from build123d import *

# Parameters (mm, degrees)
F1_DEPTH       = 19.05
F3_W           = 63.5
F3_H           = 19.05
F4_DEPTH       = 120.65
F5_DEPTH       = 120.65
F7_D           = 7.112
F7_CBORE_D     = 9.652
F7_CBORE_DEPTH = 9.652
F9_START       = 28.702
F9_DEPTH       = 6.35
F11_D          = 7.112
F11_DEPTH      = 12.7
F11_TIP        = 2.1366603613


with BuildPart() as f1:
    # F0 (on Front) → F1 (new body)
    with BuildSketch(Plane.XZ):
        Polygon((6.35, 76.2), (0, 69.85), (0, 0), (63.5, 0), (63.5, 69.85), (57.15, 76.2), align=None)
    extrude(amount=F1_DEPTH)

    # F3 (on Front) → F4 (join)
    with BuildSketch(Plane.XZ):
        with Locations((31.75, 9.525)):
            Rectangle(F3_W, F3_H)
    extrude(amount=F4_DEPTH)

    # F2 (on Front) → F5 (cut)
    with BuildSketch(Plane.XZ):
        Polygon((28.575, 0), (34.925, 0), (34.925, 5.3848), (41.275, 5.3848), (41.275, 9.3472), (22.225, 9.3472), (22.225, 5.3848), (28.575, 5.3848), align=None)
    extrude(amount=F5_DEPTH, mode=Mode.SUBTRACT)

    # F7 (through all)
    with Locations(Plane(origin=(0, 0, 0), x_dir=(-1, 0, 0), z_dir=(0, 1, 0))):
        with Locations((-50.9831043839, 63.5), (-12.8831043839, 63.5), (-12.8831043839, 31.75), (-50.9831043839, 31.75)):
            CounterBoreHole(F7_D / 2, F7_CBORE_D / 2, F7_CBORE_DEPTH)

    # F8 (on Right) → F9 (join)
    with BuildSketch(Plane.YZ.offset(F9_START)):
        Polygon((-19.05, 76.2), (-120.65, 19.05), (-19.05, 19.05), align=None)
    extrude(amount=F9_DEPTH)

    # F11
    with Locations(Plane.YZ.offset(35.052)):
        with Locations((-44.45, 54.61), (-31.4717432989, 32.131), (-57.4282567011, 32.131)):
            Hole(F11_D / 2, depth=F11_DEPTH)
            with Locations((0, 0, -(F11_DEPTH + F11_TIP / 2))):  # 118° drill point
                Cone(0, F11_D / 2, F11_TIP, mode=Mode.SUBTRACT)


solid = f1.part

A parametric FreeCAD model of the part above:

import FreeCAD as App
import Part
import Sketcher

V = App.Vector
Q = App.Units.Quantity

doc = App.newDocument("Part")
body = doc.addObject("PartDesign::Body", "Body")

sketch1 = doc.addObject("Sketcher::SketchObject", "Sketch")
body.addObject(sketch1)
sketch1.AttachmentSupport = (doc.XZ_Plane, [""])
sketch1.MapMode = "FlatFace"
sketch1.addGeometry([
    Part.LineSegment(V(6, 76, 0), V(0, 70, 0)),
    Part.LineSegment(V(0, 70, 0), V(0, 0, 0)),
    Part.LineSegment(V(0, 0, 0), V(64, 0, 0)),
    Part.LineSegment(V(64, 0, 0), V(64, 70, 0)),
    Part.LineSegment(V(64, 70, 0), V(57, 76, 0)),
    Part.LineSegment(V(57, 76, 0), V(6, 76, 0)),
], False)
sketch1.addConstraint([
    Sketcher.Constraint("Coincident", 0, 2, 1, 1),
    Sketcher.Constraint("Coincident", 1, 2, 2, 1),
    Sketcher.Constraint("Coincident", 2, 2, 3, 1),
    Sketcher.Constraint("Coincident", 3, 2, 4, 1),
    Sketcher.Constraint("Coincident", 4, 2, 5, 1),
    Sketcher.Constraint("Coincident", 5, 2, 0, 1),
    Sketcher.Constraint("Vertical", 1),
    Sketcher.Constraint("Horizontal", 2),
    Sketcher.Constraint("Vertical", 3),
    Sketcher.Constraint("Horizontal", 5),
    Sketcher.Constraint("Coincident", 1, 2, -1, 1),
    Sketcher.Constraint("Perpendicular", 0, 4),
    Sketcher.Constraint("Horizontal", 0, 2, 3, 2),
    Sketcher.Constraint("Equal", 0, 4),
    Sketcher.Constraint("DistanceX", 5, 2, 5, 1, Q("2 in")),
    Sketcher.Constraint("DistanceX", 2, 1, 2, 2, Q("2.5 in")),
    Sketcher.Constraint("DistanceY", -1, 1, 4, 2, Q("3 in")),
])
pad1 = doc.addObject("PartDesign::Pad", "Pad")
body.addObject(pad1)
pad1.Profile = sketch1
pad1.Length = Q("0.75 in")

sketch2 = doc.addObject("Sketcher::SketchObject", "Sketch001")
body.addObject(sketch2)
sketch2.AttachmentSupport = (doc.XZ_Plane, [""])
sketch2.MapMode = "FlatFace"
sketch2.addGeometry([
    Part.LineSegment(V(0, 19, 0), V(0, 0, 0)),
    Part.LineSegment(V(0, 0, 0), V(64, 0, 0)),
    Part.LineSegment(V(64, 0, 0), V(64, 19, 0)),
    Part.LineSegment(V(64, 19, 0), V(0, 19, 0)),
], False)
sketch2.addConstraint([
    Sketcher.Constraint("Coincident", 0, 2, 1, 1),
    Sketcher.Constraint("Coincident", 1, 2, 2, 1),
    Sketcher.Constraint("Coincident", 2, 2, 3, 1),
    Sketcher.Constraint("Coincident", 3, 2, 0, 1),
    Sketcher.Constraint("Vertical", 0),
    Sketcher.Constraint("Horizontal", 1),
    Sketcher.Constraint("Vertical", 2),
    Sketcher.Constraint("Horizontal", 3),
    Sketcher.Constraint("Coincident", 0, 2, -1, 1),
    Sketcher.Constraint("DistanceX", 1, 1, 1, 2, Q("2.5 in")),
    Sketcher.Constraint("DistanceY", 0, 2, 0, 1, Q("0.75 in")),
])
pad2 = doc.addObject("PartDesign::Pad", "Pad001")
body.addObject(pad2)
pad2.Profile = sketch2
pad2.Length = Q("4.75 in")

sketch3 = doc.addObject("Sketcher::SketchObject", "Sketch002")
body.addObject(sketch3)
sketch3.AttachmentSupport = (doc.XZ_Plane, [""])
sketch3.MapMode = "FlatFace"
sketch3.addGeometry([
    Part.LineSegment(V(28.6, 0, 0), V(34.9, 0, 0)),
    Part.LineSegment(V(34.9, 0, 0), V(34.9, 5.4, 0)),
    Part.LineSegment(V(34.9, 5.4, 0), V(41.3, 5.4, 0)),
    Part.LineSegment(V(41.3, 5.4, 0), V(41.3, 9.3, 0)),
    Part.LineSegment(V(41.3, 9.3, 0), V(22.2, 9.3, 0)),
    Part.LineSegment(V(22.2, 9.3, 0), V(22.2, 5.4, 0)),
    Part.LineSegment(V(22.2, 5.4, 0), V(28.6, 5.4, 0)),
    Part.LineSegment(V(28.6, 5.4, 0), V(28.6, 0, 0)),
], False)
sketch3.addConstraint([
    Sketcher.Constraint("Coincident", 0, 2, 1, 1),
    Sketcher.Constraint("Coincident", 1, 2, 2, 1),
    Sketcher.Constraint("Coincident", 2, 2, 3, 1),
    Sketcher.Constraint("Coincident", 3, 2, 4, 1),
    Sketcher.Constraint("Coincident", 4, 2, 5, 1),
    Sketcher.Constraint("Coincident", 5, 2, 6, 1),
    Sketcher.Constraint("Coincident", 6, 2, 7, 1),
    Sketcher.Constraint("Coincident", 7, 2, 0, 1),
    Sketcher.Constraint("Horizontal", 0),
    Sketcher.Constraint("Vertical", 1),
    Sketcher.Constraint("Horizontal", 2),
    Sketcher.Constraint("Vertical", 3),
    Sketcher.Constraint("Horizontal", 4),
    Sketcher.Constraint("Vertical", 5),
    Sketcher.Constraint("Horizontal", 6),
    Sketcher.Constraint("Vertical", 7),
    Sketcher.Constraint("PointOnObject", 0, 2, -1),
    Sketcher.Constraint("Horizontal", 2, 2, 5, 2),
    Sketcher.Constraint("Equal", 0, 2),
    Sketcher.Constraint("Equal", 2, 6),
    Sketcher.Constraint("DistanceX", 0, 1, 0, 2, Q("0.25 in")),
    Sketcher.Constraint("DistanceY", 1, 1, 1, 2, Q("0.212 in")),
    Sketcher.Constraint("DistanceY", 3, 1, 3, 2, Q("0.156 in")),
    Sketcher.Constraint("DistanceX", -1, 1, 0, 2, Q("1.375 in")),
])
pocket1 = doc.addObject("PartDesign::Pocket", "Pocket")
body.addObject(pocket1)
pocket1.Profile = sketch3
pocket1.Length = Q("4.75 in")
pocket1.Reversed = True

sketch4 = doc.addObject("Sketcher::SketchObject", "Sketch003")
body.addObject(sketch4)
sketch4.AttachmentSupport = (doc.XZ_Plane, [""])
sketch4.MapMode = "FlatFace"
sketch4.addGeometry([
    Part.Circle(V(51, 63.5, 0), V(0, 0, 1), 3.6),
    Part.Circle(V(12.9, 63.5, 0), V(0, 0, 1), 3.6),
    Part.Circle(V(12.9, 31.8, 0), V(0, 0, 1), 3.6),
    Part.Circle(V(51, 31.8, 0), V(0, 0, 1), 3.6),
], False)
sketch4.addConstraint([
    Sketcher.Constraint("Equal", 0, 1),
    Sketcher.Constraint("Equal", 1, 2),
    Sketcher.Constraint("Equal", 2, 3),
    Sketcher.Constraint("Horizontal", 0, 3, 1, 3),
    Sketcher.Constraint("Horizontal", 2, 3, 3, 3),
    Sketcher.Constraint("Vertical", 1, 3, 2, 3),
    Sketcher.Constraint("Vertical", 0, 3, 3, 3),
    Sketcher.Constraint("Diameter", 0, Q("0.28 in")),
    Sketcher.Constraint("DistanceY", -1, 1, 0, 3, Q("2.5 in")),
    Sketcher.Constraint("DistanceX", 1, 3, 0, 3, Q("1.5 in")),
    Sketcher.Constraint("DistanceY", -1, 1, 2, 3, Q("1.25 in")),
    Sketcher.Constraint("DistanceX", -1, 1, 0, 3, 50.983104),
])
doc.recompute()
hole = doc.addObject("PartDesign::Hole", "Hole")
body.addObject(hole)
hole.Profile = sketch4
hole.ThreadType = "None"
hole.Diameter = Q("0.28 in")
hole.DepthType = "ThroughAll"
hole.HoleCutType = "Counterbore"
hole.HoleCutDiameter = Q("0.38 in")
hole.HoleCutDepth = Q("0.38 in")
hole.Reversed = True

sketch5 = doc.addObject("Sketcher::SketchObject", "Sketch004")
body.addObject(sketch5)
sketch5.AttachmentSupport = (doc.YZ_Plane, [""])
sketch5.MapMode = "FlatFace"
sketch5.AttachmentOffset = App.Placement(V(0, 0, 1.13 * 25.4), App.Rotation())
sketch5.addGeometry([
    Part.LineSegment(V(-19, 76, 0), V(-121, 19, 0)),
    Part.LineSegment(V(-121, 19, 0), V(-19, 19, 0)),
    Part.LineSegment(V(-19, 19, 0), V(-19, 76, 0)),
], False)
sketch5.addConstraint([
    Sketcher.Constraint("Coincident", 0, 2, 1, 1),
    Sketcher.Constraint("Coincident", 1, 2, 2, 1),
    Sketcher.Constraint("Coincident", 2, 2, 0, 1),
    Sketcher.Constraint("Horizontal", 1),
    Sketcher.Constraint("Vertical", 2),
    Sketcher.Constraint("DistanceX", 1, 1, 1, 2, Q("4 in")),
    Sketcher.Constraint("DistanceY", -1, 1, 2, 2, Q("3 in")),
    Sketcher.Constraint("DistanceY", 2, 1, 2, 2, Q("2.25 in")),
    Sketcher.Constraint("DistanceX", 0, 2, -1, 1, Q("4.75 in")),
])
pad3 = doc.addObject("PartDesign::Pad", "Pad002")
body.addObject(pad3)
pad3.Profile = sketch5
pad3.Length = Q("0.25 in")

sketch6 = doc.addObject("Sketcher::SketchObject", "Sketch005")
body.addObject(sketch6)
sketch6.AttachmentSupport = (doc.YZ_Plane, [""])
sketch6.MapMode = "FlatFace"
sketch6.AttachmentOffset = App.Placement(V(0, 0, 1.38 * 25.4), App.Rotation())
sketch6.addGeometry([
    Part.Circle(V(-44.5, 54.6, 0), V(0, 0, 1), 3.6),
    Part.Circle(V(-31.5, 32.1, 0), V(0, 0, 1), 3.6),
    Part.Circle(V(-57.4, 32.1, 0), V(0, 0, 1), 3.6),
], False)
sketch6.addConstraint([
    Sketcher.Constraint("Equal", 0, 1),
    Sketcher.Constraint("Equal", 1, 2),
    Sketcher.Constraint("Horizontal", 1, 3, 2, 3),
    Sketcher.Constraint("Diameter", 0, Q("0.28 in")),
    Sketcher.Constraint("DistanceX", 0, 3, -1, 1, Q("1.75 in")),
    Sketcher.Constraint("DistanceY", -1, 1, 0, 3, Q("2.15 in")),
    Sketcher.Constraint("DistanceY", -1, 1, 1, 3, Q("1.265 in")),
    Sketcher.Constraint("DistanceX", 1, 3, -1, 1, 31.471743),
    Sketcher.Constraint("DistanceX", 2, 3, -1, 1, 57.428257),
])
doc.recompute()
hole2 = doc.addObject("PartDesign::Hole", "Hole001")
body.addObject(hole2)
hole2.Profile = sketch6
hole2.ThreadType = "None"
hole2.Diameter = Q("0.28 in")
hole2.DepthType = "Dimension"
hole2.Depth = Q("0.5 in")
hole2.DrillPoint = "Angled"
hole2.DrillPointAngle = 118

doc.recompute()
